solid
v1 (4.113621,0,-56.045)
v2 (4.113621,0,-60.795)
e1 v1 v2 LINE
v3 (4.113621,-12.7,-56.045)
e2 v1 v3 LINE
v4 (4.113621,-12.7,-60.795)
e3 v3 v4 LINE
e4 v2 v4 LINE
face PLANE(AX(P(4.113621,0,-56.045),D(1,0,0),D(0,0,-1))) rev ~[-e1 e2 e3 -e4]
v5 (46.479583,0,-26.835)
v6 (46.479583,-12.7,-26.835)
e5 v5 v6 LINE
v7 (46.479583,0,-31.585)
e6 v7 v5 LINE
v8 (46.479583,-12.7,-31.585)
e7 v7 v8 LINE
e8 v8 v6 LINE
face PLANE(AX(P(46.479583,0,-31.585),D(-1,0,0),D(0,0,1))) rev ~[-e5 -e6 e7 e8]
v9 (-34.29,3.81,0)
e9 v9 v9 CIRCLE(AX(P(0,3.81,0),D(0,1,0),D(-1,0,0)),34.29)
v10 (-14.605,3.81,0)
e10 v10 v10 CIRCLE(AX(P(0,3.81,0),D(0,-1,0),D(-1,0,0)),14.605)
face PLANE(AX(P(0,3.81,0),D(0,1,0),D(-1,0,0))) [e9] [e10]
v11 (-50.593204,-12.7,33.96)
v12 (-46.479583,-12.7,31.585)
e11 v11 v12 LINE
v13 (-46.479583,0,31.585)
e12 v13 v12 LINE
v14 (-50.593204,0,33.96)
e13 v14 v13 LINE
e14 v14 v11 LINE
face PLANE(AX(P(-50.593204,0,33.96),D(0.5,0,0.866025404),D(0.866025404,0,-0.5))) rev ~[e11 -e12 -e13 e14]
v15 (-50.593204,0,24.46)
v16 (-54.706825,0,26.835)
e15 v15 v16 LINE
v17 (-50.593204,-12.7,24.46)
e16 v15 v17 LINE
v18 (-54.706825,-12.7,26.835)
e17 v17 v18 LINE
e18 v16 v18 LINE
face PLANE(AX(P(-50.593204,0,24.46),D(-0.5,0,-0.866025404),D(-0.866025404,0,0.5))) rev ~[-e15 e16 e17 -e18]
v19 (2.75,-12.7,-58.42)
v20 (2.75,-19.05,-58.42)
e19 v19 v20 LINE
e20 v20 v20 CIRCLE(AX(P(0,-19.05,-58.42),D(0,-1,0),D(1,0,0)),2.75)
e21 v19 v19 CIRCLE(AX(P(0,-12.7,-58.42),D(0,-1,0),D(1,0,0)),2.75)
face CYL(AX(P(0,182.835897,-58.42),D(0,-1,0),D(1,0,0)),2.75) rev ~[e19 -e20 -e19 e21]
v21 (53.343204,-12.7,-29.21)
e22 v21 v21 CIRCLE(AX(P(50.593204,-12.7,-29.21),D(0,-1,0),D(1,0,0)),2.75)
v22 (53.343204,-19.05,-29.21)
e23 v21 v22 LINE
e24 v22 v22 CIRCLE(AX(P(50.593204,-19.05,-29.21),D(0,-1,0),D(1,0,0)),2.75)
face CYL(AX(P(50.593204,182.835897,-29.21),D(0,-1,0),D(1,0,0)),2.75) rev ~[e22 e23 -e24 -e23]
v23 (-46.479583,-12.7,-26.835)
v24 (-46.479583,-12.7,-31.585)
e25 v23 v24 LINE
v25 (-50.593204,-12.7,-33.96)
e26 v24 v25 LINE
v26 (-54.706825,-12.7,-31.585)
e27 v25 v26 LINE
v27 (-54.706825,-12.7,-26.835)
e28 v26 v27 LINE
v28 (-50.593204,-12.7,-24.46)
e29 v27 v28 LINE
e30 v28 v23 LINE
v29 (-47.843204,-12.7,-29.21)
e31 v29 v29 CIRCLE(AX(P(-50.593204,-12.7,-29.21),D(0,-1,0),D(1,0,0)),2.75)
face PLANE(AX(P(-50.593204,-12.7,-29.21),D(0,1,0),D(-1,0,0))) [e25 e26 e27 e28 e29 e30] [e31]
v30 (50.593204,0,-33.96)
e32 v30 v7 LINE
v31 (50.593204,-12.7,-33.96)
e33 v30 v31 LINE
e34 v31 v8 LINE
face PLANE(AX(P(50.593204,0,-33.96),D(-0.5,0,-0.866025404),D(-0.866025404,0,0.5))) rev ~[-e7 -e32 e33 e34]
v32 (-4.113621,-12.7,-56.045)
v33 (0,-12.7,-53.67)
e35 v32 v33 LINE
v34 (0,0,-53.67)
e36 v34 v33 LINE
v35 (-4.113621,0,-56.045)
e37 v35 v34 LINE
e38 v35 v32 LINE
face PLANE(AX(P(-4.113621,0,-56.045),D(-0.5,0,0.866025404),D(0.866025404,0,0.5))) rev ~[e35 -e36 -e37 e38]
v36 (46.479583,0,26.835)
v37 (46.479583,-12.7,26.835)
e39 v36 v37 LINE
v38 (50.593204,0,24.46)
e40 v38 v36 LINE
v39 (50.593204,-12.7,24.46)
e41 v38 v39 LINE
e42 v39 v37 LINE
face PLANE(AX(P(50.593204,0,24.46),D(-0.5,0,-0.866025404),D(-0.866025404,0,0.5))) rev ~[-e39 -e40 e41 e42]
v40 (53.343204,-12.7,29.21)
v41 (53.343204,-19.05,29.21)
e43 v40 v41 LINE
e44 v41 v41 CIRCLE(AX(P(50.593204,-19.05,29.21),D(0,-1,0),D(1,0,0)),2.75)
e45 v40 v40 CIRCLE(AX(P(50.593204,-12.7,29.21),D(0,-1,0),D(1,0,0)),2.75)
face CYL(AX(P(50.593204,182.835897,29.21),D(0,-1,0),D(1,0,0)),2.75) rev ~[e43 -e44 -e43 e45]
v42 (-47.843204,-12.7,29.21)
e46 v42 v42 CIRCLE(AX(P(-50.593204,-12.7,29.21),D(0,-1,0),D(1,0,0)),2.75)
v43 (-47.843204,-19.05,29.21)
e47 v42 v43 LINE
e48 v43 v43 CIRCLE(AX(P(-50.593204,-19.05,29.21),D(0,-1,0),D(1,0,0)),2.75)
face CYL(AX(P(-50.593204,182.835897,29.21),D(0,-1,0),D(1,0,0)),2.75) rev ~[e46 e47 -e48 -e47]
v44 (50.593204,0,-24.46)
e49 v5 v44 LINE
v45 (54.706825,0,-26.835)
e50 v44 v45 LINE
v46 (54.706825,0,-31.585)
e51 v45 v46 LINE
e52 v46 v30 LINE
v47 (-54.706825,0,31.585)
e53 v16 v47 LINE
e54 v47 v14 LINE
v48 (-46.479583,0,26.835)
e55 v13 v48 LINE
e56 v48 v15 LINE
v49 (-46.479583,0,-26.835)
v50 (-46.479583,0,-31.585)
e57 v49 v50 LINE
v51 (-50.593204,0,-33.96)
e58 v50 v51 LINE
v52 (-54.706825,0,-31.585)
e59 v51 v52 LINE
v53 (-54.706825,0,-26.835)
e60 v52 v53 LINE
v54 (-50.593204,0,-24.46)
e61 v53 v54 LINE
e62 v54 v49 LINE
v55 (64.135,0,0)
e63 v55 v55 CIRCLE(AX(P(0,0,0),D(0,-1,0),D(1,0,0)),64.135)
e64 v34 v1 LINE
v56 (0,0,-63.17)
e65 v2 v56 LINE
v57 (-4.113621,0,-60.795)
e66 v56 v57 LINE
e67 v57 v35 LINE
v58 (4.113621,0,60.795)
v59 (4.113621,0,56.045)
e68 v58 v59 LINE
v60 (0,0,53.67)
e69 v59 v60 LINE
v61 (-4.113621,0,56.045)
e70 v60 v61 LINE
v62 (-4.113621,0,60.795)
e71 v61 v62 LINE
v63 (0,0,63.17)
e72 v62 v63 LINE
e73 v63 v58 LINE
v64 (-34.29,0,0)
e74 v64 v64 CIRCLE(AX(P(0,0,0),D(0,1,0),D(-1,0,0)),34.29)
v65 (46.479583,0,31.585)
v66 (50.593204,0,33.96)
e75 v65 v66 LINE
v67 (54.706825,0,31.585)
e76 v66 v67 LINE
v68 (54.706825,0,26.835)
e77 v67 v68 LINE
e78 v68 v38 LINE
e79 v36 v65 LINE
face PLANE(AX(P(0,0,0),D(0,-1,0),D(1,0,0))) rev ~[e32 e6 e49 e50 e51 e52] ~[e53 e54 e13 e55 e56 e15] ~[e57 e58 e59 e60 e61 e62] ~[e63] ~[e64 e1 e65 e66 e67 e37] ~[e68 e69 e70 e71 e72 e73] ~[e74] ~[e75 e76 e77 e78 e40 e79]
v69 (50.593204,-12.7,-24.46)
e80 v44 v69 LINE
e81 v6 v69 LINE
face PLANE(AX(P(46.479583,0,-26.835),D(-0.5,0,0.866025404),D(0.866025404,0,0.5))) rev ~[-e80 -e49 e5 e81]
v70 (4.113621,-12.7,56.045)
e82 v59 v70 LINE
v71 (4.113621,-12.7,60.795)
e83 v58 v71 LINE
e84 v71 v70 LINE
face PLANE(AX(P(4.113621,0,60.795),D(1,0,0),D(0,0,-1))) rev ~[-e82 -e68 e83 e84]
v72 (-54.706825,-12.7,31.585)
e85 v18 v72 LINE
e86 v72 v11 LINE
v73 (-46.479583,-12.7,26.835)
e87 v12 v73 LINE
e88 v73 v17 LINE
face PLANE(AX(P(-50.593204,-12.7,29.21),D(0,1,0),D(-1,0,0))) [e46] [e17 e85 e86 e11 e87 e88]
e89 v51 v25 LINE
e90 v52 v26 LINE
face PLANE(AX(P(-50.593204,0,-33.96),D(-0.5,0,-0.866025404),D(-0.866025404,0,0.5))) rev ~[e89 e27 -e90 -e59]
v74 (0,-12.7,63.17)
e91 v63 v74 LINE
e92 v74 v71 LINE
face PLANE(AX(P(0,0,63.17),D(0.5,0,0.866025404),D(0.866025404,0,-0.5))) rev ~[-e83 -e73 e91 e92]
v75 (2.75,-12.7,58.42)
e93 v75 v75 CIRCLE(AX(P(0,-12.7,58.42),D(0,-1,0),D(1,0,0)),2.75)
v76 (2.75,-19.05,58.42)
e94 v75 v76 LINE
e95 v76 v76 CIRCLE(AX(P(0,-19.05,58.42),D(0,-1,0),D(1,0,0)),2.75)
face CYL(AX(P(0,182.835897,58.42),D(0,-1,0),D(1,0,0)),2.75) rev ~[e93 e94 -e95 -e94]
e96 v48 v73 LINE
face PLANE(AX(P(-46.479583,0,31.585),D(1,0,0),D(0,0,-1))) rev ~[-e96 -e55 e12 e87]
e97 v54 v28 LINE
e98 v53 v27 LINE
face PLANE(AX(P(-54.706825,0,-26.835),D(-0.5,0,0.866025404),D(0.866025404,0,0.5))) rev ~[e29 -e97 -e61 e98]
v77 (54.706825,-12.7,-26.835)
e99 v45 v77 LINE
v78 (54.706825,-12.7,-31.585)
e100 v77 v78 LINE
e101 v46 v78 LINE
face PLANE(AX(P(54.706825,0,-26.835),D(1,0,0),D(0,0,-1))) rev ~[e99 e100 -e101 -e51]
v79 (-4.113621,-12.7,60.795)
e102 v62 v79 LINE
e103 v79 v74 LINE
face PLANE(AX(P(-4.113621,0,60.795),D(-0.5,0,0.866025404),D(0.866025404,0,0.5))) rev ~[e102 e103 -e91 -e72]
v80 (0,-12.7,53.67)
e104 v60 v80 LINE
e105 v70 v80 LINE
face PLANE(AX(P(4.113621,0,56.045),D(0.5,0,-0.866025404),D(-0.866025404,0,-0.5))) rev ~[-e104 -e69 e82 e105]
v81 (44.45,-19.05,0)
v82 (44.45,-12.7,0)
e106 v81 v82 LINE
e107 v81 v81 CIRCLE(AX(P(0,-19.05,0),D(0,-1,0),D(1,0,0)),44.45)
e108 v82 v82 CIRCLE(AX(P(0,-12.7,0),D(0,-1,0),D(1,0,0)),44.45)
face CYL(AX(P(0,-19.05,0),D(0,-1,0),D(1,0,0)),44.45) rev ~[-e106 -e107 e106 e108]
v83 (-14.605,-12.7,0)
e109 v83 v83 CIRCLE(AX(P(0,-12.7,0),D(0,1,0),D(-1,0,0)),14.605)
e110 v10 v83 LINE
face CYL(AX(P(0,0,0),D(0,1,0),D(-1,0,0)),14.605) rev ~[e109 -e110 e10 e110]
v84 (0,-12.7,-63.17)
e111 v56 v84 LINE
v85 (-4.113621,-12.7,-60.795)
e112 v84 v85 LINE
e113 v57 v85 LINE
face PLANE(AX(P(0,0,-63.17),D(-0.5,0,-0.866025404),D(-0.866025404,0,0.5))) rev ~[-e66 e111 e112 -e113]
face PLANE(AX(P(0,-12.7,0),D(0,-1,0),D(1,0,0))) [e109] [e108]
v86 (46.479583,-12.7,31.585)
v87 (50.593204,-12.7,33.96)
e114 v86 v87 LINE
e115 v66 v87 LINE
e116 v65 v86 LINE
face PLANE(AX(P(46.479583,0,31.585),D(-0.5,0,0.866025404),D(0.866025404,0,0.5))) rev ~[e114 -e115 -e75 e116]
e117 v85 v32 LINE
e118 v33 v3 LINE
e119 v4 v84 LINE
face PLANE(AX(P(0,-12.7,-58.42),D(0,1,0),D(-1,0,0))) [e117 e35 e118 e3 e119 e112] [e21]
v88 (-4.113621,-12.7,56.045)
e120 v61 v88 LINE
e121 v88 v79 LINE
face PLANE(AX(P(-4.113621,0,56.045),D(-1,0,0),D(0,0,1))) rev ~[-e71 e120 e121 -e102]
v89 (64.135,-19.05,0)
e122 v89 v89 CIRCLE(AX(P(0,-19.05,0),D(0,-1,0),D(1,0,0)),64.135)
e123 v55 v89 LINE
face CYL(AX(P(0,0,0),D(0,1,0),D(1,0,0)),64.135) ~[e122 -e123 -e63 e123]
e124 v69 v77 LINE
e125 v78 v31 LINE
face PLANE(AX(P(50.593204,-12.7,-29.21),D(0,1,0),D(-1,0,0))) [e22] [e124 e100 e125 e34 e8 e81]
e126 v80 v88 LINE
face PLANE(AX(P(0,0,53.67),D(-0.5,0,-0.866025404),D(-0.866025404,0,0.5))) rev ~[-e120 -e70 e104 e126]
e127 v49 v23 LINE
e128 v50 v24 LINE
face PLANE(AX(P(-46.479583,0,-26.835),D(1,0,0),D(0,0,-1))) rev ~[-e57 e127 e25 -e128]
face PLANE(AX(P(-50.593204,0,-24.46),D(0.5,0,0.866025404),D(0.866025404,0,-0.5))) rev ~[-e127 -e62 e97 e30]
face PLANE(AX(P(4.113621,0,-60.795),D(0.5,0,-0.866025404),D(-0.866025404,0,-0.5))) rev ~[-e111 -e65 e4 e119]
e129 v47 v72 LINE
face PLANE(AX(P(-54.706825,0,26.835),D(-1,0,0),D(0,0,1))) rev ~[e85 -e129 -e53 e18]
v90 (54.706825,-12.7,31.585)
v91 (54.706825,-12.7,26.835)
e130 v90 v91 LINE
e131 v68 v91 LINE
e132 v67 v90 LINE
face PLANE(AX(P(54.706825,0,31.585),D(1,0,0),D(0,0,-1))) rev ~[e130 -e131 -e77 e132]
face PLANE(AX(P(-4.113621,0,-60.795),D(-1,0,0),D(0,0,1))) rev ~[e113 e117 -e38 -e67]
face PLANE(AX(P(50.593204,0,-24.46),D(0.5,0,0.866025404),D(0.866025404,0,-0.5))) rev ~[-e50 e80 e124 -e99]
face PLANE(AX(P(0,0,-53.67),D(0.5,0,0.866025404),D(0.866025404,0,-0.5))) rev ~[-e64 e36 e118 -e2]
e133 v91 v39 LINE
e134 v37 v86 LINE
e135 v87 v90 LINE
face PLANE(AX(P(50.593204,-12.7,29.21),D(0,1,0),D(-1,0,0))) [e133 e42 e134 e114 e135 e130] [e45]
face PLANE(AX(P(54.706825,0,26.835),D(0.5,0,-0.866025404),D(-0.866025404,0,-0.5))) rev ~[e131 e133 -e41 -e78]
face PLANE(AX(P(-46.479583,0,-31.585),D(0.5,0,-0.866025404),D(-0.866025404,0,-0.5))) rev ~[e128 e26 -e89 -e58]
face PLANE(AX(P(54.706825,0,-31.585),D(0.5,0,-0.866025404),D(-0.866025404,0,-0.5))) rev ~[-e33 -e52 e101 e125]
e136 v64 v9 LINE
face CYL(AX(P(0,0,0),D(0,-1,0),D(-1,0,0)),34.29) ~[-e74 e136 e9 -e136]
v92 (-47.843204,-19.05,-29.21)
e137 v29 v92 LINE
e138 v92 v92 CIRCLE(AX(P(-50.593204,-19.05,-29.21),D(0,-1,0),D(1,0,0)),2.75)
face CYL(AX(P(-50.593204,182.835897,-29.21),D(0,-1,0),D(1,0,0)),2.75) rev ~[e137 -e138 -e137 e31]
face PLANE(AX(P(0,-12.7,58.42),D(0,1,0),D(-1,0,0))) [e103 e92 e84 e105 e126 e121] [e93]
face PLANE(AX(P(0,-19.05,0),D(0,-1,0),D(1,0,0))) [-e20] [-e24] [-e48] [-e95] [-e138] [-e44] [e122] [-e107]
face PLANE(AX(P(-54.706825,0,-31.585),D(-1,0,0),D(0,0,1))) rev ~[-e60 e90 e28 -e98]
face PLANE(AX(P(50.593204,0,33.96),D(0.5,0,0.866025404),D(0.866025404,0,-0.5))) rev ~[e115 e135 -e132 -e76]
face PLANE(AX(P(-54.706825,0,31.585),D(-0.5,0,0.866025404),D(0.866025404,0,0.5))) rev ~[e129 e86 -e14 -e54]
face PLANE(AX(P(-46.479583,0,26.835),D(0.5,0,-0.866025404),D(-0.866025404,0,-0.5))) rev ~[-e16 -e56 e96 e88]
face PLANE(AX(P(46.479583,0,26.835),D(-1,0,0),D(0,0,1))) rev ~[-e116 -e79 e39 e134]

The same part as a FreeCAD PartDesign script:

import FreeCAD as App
import Part
import Sketcher
Q = App.Units.Quantity


def add_polygon(sketch, points):
    """Adds a closed chain of lines whose ends are joined by coincident constraints."""
    first, n = sketch.GeometryCount, len(points)
    for a, b in zip(points, points[1:] + points[:1]):
        sketch.addGeometry(Part.LineSegment(App.Vector(*a, 0), App.Vector(*b, 0)), False)
    for i in range(n):
        sketch.addConstraint(Sketcher.Constraint("Coincident", first + i, 2, first + (i + 1) % n, 1))

doc = App.newDocument("Part")
body = doc.addObject("PartDesign::Body", "Body")

# Sketch on XZ plane
sketch1 = body.newObject("Sketcher::SketchObject", "Sketch")
sketch1.AttachmentSupport = (doc.getObject("XZ_Plane"), [""])
sketch1.MapMode = "FlatFace"
sketch1.addGeometry(Part.Circle(App.Vector(0, 0, 0), App.Vector(0, 0, 1), 64), False)
sketch1.addConstraint(Sketcher.Constraint("Coincident", 0, 3, -1, 1))
sketch1.addConstraint(Sketcher.Constraint("Diameter", 0, Q("5.05 in")))
pad1 = body.newObject("PartDesign::Pad", "Pad")
pad1.Profile = sketch1
pad1.Length = Q("0.75 in")

# Sketch on XZ plane
sketch2 = body.newObject("Sketcher::SketchObject", "Sketch001")
sketch2.AttachmentSupport = (doc.getObject("XZ_Plane"), [""])
sketch2.MapMode = "FlatFace"
sketch2.addGeometry(Part.Circle(App.Vector(0, 0, 0), App.Vector(0, 0, 1), 34), False)
sketch2.addConstraint(Sketcher.Constraint("Coincident", 0, 3, -1, 1))
sketch2.addConstraint(Sketcher.Constraint("Diameter", 0, Q("2.7 in")))
pad2 = body.newObject("PartDesign::Pad", "Pad001")
pad2.Profile = sketch2
pad2.Length = Q("0.15 in")
pad2.Reversed = True

# Sketch on XZ plane
sketch3 = body.newObject("Sketcher::SketchObject", "Sketch002")
sketch3.AttachmentSupport = (doc.getObject("XZ_Plane"), [""])
sketch3.MapMode = "FlatFace"
sketch3.AttachmentOffset = App.Placement(App.Vector(0, 0, 0.75 * 25.4), App.Rotation())
sketch3.addGeometry(Part.Circle(App.Vector(0, 0, 0), App.Vector(0, 0, 1), 13), False)
sketch3.addConstraint(Sketcher.Constraint("Coincident", 0, 3, -1, 1))
sketch3.addConstraint(Sketcher.Constraint("Diameter", 0, Q("1 in")))
pocket1 = body.newObject("PartDesign::Pocket", "Pocket")
pocket1.Profile = sketch3
pocket1.Type = "ThroughAll"

# Sketch on XZ plane
sketch4 = body.newObject("Sketcher::SketchObject", "Sketch003")
sketch4.AttachmentSupport = (doc.getObject("XZ_Plane"), [""])
sketch4.MapMode = "FlatFace"
sketch4.addGeometry(Part.Circle(App.Vector(0, 0, 0), App.Vector(0, 0, 1), 15), False)
sketch4.addConstraint(Sketcher.Constraint("Coincident", 0, 3, -1, 1))
sketch4.addConstraint(Sketcher.Constraint("Diameter", 0, Q("1.15 in")))
pocket2 = body.newObject("PartDesign::Pocket", "Pocket001")
pocket2.Profile = sketch4
pocket2.Type = "ThroughAll"
pocket2.Midplane = True

# Sketch on XZ plane
sketch5 = body.newObject("Sketcher::SketchObject", "Sketch004")
sketch5.AttachmentSupport = (doc.getObject("XZ_Plane"), [""])
sketch5.MapMode = "FlatFace"
sketch5.AttachmentOffset = App.Placement(App.Vector(0, 0, 0.75 * 25.4), App.Rotation())
sketch5.addGeometry(Part.Circle(App.Vector(0, 0, 0), App.Vector(0, 0, 1), 44), False)
sketch5.addConstraint(Sketcher.Constraint("Coincident", 0, 3, -1, 1))
sketch5.addConstraint(Sketcher.Constraint("Diameter", 0, Q("3.5 in")))
pocket3 = body.newObject("PartDesign::Pocket", "Pocket002")
pocket3.Profile = sketch5
pocket3.Length = Q("0.25 in")

# Sketch on XZ plane
sketch6 = body.newObject("Sketcher::SketchObject", "Sketch005")
sketch6.AttachmentSupport = (doc.getObject("XZ_Plane"), [""])
sketch6.MapMode = "FlatFace"
add_polygon(sketch6, [(-4.1, -60.8), (-4.1, -56), (0, -53.7), (4.1, -56), (4.1, -60.8), (0, -63.2)])  # lines 0-5
add_polygon(sketch6, [(-46.5, -26.8), (-46.5, -31.6), (-50.6, -34), (-54.7, -31.6), (-54.7, -26.8), (-50.6, -24.5)])  # lines 6-11
add_polygon(sketch6, [(-46.5, 26.8), (-50.6, 24.5), (-54.7, 26.8), (-54.7, 31.6), (-50.6, 34), (-46.5, 31.6)])  # lines 12-17
add_polygon(sketch6, [(0, 53.7), (-4.1, 56), (-4.1, 60.8), (0, 63.2), (4.1, 60.8), (4.1, 56)])  # lines 18-23
add_polygon(sketch6, [(46.5, 26.8), (46.5, 31.6), (50.6, 34), (54.7, 31.6), (54.7, 26.8), (50.6, 24.5)])  # lines 24-29
add_polygon(sketch6, [(46.5, -26.8), (50.6, -24.5), (54.7, -26.8), (54.7, -31.6), (50.6, -34), (46.5, -31.6)])  # lines 30-35
sketch6.addConstraint(Sketcher.Constraint("Vertical", 0))
sketch6.addConstraint(Sketcher.Constraint("Vertical", 3))
sketch6.addConstraint(Sketcher.Constraint("Vertical", 6))
sketch6.addConstraint(Sketcher.Constraint("Vertical", 9))
sketch6.addConstraint(Sketcher.Constraint("Vertical", 14))
sketch6.addConstraint(Sketcher.Constraint("Vertical", 17))
sketch6.addConstraint(Sketcher.Constraint("Vertical", 19))
sketch6.addConstraint(Sketcher.Constraint("Vertical", 22))
sketch6.addConstraint(Sketcher.Constraint("Vertical", 24))
sketch6.addConstraint(Sketcher.Constraint("Vertical", 27))
sketch6.addConstraint(Sketcher.Constraint("Vertical", 32))
sketch6.addConstraint(Sketcher.Constraint("Vertical", 35))
sketch6.addConstraint(Sketcher.Constraint("Symmetric", 2, 2, 18, 2, -1, 1))
sketch6.addConstraint(Sketcher.Constraint("Symmetric", 4, 2, 20, 2, -1, 1))
sketch6.addConstraint(Sketcher.Constraint("Symmetric", 5, 2, 21, 2, -1, 1))
sketch6.addConstraint(Sketcher.Constraint("Symmetric", 1, 2, 23, 2, -1, 1))
sketch6.addConstraint(Sketcher.Constraint("Symmetric", 6, 2, 24, 2, -1, 1))
sketch6.addConstraint(Sketcher.Constraint("Symmetric", 7, 2, 25, 2, -1, 1))
sketch6.addConstraint(Sketcher.Constraint("Symmetric", 8, 2, 26, 2, -1, 1))
sketch6.addConstraint(Sketcher.Constraint("Symmetric", 10, 2, 28, 2, -1, 1))
sketch6.addConstraint(Sketcher.Constraint("Symmetric", 12, 2, 30, 2, -1, 1))
sketch6.addConstraint(Sketcher.Constraint("Symmetric", 13, 2, 31, 2, -1, 1))
sketch6.addConstraint(Sketcher.Constraint("Symmetric", 15, 2, 33, 2, -1, 1))
sketch6.addConstraint(Sketcher.Constraint("Symmetric", 16, 2, 34, 2, -1, 1))
sketch6.addConstraint(Sketcher.Constraint("Symmetric", 0, 2, 2, 2, -2))
sketch6.addConstraint(Sketcher.Constraint("Symmetric", 16, 2, 24, 2, -2))
sketch6.addConstraint(Sketcher.Constraint("Symmetric", 15, 2, 25, 2, -2))
sketch6.addConstraint(Sketcher.Constraint("Symmetric", 14, 2, 26, 2, -2))
sketch6.addConstraint(Sketcher.Constraint("Symmetric", 12, 2, 28, 2, -2))
sketch6.addConstraint(Sketcher.Constraint("PointOnObject", 1, 2, -2))
sketch6.addConstraint(Sketcher.Constraint("PointOnObject", 4, 2, -2))
sketch6.addConstraint(Sketcher.Constraint("Parallel", 1, 4))
sketch6.addConstraint(Sketcher.Constraint("Parallel", 2, 5))
sketch6.addConstraint(Sketcher.Constraint("Parallel", 4, 7))
sketch6.addConstraint(Sketcher.Constraint("Parallel", 5, 8))
sketch6.addConstraint(Sketcher.Constraint("Parallel", 7, 10))
sketch6.addConstraint(Sketcher.Constraint("Parallel", 8, 11))
sketch6.addConstraint(Sketcher.Constraint("Parallel", 10, 12))
sketch6.addConstraint(Sketcher.Constraint("Parallel", 11, 13))
sketch6.addConstraint(Sketcher.Constraint("Parallel", 15, 20))
sketch6.addConstraint(Sketcher.Constraint("Parallel", 20, 23))
sketch6.addConstraint(Sketcher.Constraint("Parallel", 25, 28))
sketch6.addConstraint(Sketcher.Constraint("Parallel", 26, 29))
sketch6.addConstraint(Sketcher.Constraint("Parallel", 28, 30))
sketch6.addConstraint(Sketcher.Constraint("Parallel", 30, 33))
sketch6.addConstraint(Sketcher.Constraint("Horizontal", 6, 2, 8, 2))
sketch6.addConstraint(Sketcher.Constraint("Horizontal", 9, 2, 11, 2))
sketch6.addConstraint(Sketcher.Constraint("Equal", 3, 6))
sketch6.addConstraint(Sketcher.Constraint("Equal", 5, 7))
sketch6.addConstraint(Sketcher.Constraint("Angle", 1, Q("30 deg")))
sketch6.addConstraint(Sketcher.Constraint("DistanceY", 8, 2, 13, 2, Q("2.3 in")))
sketch6.addConstraint(Sketcher.Constraint("DistanceY", 5, 2, 6, 2, Q("1.15 in")))
sketch6.addConstraint(Sketcher.Constraint("DistanceY", 0, 1, 0, 2, 4.75))
sketch6.addConstraint(Sketcher.Constraint("Distance", 1, 4.75))
sketch6.addConstraint(Sketcher.Constraint("DistanceX", 6, 2, -1, 1, 46.479583))
pocket4 = body.newObject("PartDesign::Pocket", "Pocket003")
pocket4.Profile = sketch6
pocket4.Length = Q("0.5 in")
pocket4.Reversed = True

# Sketch on XZ plane
sketch7 = body.newObject("Sketcher::SketchObject", "Sketch006")
sketch7.AttachmentSupport = (doc.getObject("XZ_Plane"), [""])
sketch7.MapMode = "FlatFace"
sketch7.addGeometry(Part.Circle(App.Vector(-50.6, 29.2, 0), App.Vector(0, 0, 1), 2.8), False)
sketch7.addGeometry(Part.Circle(App.Vector(-50.6, -29.2, 0), App.Vector(0, 0, 1), 2.8), False)
sketch7.addGeometry(Part.Circle(App.Vector(0, -58.4, 0), App.Vector(0, 0, 1), 2.8), False)
sketch7.addGeometry(Part.Circle(App.Vector(50.6, -29.2, 0), App.Vector(0, 0, 1), 2.8), False)
sketch7.addGeometry(Part.Circle(App.Vector(50.6, 29.2, 0), App.Vector(0, 0, 1), 2.8), False)
sketch7.addGeometry(Part.Circle(App.Vector(0, 58.4, 0), App.Vector(0, 0, 1), 2.8), False)
sketch7.addConstraint(Sketcher.Constraint("Equal", 0, 1))
sketch7.addConstraint(Sketcher.Constraint("Equal", 1, 2))
sketch7.addConstraint(Sketcher.Constraint("Equal", 2, 3))
sketch7.addConstraint(Sketcher.Constraint("Equal", 3, 4))
sketch7.addConstraint(Sketcher.Constraint("Equal", 4, 5))
sketch7.addConstraint(Sketcher.Constraint("Symmetric", 0, 3, 3, 3, -1, 1))
sketch7.addConstraint(Sketcher.Constraint("Symmetric", 1, 3, 4, 3, -1, 1))
sketch7.addConstraint(Sketcher.Constraint("Symmetric", 2, 3, 5, 3, -1, 1))
sketch7.addConstraint(Sketcher.Constraint("Symmetric", 1, 3, 3, 3, -2))
sketch7.addConstraint(Sketcher.Constraint("PointOnObject", 2, 3, -2))
sketch7.addConstraint(Sketcher.Constraint("DistanceY", 2, 3, -1, 1, Q("2.3 in")))
sketch7.addConstraint(Sketcher.Constraint("DistanceY", 1, 3, 0, 3, Q("2.3 in")))
sketch7.addConstraint(Sketcher.Constraint("Diameter", 0, 5.5))
sketch7.addConstraint(Sketcher.Constraint("DistanceX", 1, 3, 3, 3, 101.186408))
doc.recompute()
hole = body.newObject("PartDesign::Hole", "Hole")
hole.Profile = sketch7
hole.ThreadType = "None"
hole.Diameter = 5.5
hole.DepthType = "ThroughAll"
hole.Reversed = True

doc.recompute()
